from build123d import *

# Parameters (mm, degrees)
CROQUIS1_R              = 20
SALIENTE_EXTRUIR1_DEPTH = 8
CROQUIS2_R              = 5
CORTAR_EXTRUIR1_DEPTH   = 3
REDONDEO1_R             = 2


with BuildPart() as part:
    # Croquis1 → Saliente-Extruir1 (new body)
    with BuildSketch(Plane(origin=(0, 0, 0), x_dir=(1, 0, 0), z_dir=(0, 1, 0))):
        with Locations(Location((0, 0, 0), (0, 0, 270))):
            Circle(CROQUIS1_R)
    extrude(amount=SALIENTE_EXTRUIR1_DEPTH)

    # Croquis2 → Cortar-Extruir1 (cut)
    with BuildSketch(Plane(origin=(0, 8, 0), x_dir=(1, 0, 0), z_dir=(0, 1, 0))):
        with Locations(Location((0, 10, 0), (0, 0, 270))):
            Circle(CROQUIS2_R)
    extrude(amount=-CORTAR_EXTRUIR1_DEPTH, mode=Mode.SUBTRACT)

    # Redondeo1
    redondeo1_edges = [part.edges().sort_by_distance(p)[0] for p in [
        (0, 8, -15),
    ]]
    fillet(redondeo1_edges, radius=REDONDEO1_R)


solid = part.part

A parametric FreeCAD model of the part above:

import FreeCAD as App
import Part
import Sketcher


def edges_at(feature, points):
    """Names of the edges that pass closest to the given points."""
    edges = feature.Shape.Edges
    near = lambda p: min(range(len(edges)), key=lambda i: edges[i].distToShape(Part.Vertex(*p))[0])
    return sorted({f"Edge{near(p) + 1}" for p in points})

doc = App.newDocument("Part")
body = doc.addObject("PartDesign::Body", "Body")

# Sketch on XZ plane
sketch1 = doc.addObject("Sketcher::SketchObject", "Sketch")
body.addObject(sketch1)
sketch1.AttachmentSupport = (doc.XZ_Plane, [""])
sketch1.MapMode = "FlatFace"
sketch1.addGeometry(Part.Circle(App.Vector(0, 0, 0), App.Vector(0, 0, 1), 20), False)
sketch1.addConstraint([
    Sketcher.Constraint("Coincident", 0, 3, -1, 1),
    Sketcher.Constraint("Diameter", 0, 40.0),
])
pad1 = doc.addObject("PartDesign::Pad", "Pad")
body.addObject(pad1)
pad1.Profile = sketch1
pad1.Length = 8
pad1.Reversed = True

# Sketch on XZ plane
sketch2 = doc.addObject("Sketcher::SketchObject", "Sketch001")
body.addObject(sketch2)
sketch2.AttachmentSupport = (doc.XZ_Plane, [""])
sketch2.MapMode = "FlatFace"
sketch2.AttachmentOffset = App.Placement(App.Vector(0, 0, -8), App.Rotation())
sketch2.addGeometry(Part.Circle(App.Vector(0, -10, 0), App.Vector(0, 0, 1), 5), False)
sketch2.addConstraint([
    Sketcher.Constraint("PointOnObject", 0, 3, -2),
    Sketcher.Constraint("Diameter", 0, 10.0),
    Sketcher.Constraint("DistanceY", 0, 3, -1, 1, 10.0),
])
pocket1 = doc.addObject("PartDesign::Pocket", "Pocket")
body.addObject(pocket1)
pocket1.Profile = sketch2
pocket1.Length = 3
pocket1.Reversed = True
doc.recompute()

fillet = doc.addObject("PartDesign::Fillet", "Fillet")
body.addObject(fillet)
fillet.Base = (pocket1, edges_at(pocket1, [(0, 8, -15)]))
fillet.Radius = 2

doc.recompute()
